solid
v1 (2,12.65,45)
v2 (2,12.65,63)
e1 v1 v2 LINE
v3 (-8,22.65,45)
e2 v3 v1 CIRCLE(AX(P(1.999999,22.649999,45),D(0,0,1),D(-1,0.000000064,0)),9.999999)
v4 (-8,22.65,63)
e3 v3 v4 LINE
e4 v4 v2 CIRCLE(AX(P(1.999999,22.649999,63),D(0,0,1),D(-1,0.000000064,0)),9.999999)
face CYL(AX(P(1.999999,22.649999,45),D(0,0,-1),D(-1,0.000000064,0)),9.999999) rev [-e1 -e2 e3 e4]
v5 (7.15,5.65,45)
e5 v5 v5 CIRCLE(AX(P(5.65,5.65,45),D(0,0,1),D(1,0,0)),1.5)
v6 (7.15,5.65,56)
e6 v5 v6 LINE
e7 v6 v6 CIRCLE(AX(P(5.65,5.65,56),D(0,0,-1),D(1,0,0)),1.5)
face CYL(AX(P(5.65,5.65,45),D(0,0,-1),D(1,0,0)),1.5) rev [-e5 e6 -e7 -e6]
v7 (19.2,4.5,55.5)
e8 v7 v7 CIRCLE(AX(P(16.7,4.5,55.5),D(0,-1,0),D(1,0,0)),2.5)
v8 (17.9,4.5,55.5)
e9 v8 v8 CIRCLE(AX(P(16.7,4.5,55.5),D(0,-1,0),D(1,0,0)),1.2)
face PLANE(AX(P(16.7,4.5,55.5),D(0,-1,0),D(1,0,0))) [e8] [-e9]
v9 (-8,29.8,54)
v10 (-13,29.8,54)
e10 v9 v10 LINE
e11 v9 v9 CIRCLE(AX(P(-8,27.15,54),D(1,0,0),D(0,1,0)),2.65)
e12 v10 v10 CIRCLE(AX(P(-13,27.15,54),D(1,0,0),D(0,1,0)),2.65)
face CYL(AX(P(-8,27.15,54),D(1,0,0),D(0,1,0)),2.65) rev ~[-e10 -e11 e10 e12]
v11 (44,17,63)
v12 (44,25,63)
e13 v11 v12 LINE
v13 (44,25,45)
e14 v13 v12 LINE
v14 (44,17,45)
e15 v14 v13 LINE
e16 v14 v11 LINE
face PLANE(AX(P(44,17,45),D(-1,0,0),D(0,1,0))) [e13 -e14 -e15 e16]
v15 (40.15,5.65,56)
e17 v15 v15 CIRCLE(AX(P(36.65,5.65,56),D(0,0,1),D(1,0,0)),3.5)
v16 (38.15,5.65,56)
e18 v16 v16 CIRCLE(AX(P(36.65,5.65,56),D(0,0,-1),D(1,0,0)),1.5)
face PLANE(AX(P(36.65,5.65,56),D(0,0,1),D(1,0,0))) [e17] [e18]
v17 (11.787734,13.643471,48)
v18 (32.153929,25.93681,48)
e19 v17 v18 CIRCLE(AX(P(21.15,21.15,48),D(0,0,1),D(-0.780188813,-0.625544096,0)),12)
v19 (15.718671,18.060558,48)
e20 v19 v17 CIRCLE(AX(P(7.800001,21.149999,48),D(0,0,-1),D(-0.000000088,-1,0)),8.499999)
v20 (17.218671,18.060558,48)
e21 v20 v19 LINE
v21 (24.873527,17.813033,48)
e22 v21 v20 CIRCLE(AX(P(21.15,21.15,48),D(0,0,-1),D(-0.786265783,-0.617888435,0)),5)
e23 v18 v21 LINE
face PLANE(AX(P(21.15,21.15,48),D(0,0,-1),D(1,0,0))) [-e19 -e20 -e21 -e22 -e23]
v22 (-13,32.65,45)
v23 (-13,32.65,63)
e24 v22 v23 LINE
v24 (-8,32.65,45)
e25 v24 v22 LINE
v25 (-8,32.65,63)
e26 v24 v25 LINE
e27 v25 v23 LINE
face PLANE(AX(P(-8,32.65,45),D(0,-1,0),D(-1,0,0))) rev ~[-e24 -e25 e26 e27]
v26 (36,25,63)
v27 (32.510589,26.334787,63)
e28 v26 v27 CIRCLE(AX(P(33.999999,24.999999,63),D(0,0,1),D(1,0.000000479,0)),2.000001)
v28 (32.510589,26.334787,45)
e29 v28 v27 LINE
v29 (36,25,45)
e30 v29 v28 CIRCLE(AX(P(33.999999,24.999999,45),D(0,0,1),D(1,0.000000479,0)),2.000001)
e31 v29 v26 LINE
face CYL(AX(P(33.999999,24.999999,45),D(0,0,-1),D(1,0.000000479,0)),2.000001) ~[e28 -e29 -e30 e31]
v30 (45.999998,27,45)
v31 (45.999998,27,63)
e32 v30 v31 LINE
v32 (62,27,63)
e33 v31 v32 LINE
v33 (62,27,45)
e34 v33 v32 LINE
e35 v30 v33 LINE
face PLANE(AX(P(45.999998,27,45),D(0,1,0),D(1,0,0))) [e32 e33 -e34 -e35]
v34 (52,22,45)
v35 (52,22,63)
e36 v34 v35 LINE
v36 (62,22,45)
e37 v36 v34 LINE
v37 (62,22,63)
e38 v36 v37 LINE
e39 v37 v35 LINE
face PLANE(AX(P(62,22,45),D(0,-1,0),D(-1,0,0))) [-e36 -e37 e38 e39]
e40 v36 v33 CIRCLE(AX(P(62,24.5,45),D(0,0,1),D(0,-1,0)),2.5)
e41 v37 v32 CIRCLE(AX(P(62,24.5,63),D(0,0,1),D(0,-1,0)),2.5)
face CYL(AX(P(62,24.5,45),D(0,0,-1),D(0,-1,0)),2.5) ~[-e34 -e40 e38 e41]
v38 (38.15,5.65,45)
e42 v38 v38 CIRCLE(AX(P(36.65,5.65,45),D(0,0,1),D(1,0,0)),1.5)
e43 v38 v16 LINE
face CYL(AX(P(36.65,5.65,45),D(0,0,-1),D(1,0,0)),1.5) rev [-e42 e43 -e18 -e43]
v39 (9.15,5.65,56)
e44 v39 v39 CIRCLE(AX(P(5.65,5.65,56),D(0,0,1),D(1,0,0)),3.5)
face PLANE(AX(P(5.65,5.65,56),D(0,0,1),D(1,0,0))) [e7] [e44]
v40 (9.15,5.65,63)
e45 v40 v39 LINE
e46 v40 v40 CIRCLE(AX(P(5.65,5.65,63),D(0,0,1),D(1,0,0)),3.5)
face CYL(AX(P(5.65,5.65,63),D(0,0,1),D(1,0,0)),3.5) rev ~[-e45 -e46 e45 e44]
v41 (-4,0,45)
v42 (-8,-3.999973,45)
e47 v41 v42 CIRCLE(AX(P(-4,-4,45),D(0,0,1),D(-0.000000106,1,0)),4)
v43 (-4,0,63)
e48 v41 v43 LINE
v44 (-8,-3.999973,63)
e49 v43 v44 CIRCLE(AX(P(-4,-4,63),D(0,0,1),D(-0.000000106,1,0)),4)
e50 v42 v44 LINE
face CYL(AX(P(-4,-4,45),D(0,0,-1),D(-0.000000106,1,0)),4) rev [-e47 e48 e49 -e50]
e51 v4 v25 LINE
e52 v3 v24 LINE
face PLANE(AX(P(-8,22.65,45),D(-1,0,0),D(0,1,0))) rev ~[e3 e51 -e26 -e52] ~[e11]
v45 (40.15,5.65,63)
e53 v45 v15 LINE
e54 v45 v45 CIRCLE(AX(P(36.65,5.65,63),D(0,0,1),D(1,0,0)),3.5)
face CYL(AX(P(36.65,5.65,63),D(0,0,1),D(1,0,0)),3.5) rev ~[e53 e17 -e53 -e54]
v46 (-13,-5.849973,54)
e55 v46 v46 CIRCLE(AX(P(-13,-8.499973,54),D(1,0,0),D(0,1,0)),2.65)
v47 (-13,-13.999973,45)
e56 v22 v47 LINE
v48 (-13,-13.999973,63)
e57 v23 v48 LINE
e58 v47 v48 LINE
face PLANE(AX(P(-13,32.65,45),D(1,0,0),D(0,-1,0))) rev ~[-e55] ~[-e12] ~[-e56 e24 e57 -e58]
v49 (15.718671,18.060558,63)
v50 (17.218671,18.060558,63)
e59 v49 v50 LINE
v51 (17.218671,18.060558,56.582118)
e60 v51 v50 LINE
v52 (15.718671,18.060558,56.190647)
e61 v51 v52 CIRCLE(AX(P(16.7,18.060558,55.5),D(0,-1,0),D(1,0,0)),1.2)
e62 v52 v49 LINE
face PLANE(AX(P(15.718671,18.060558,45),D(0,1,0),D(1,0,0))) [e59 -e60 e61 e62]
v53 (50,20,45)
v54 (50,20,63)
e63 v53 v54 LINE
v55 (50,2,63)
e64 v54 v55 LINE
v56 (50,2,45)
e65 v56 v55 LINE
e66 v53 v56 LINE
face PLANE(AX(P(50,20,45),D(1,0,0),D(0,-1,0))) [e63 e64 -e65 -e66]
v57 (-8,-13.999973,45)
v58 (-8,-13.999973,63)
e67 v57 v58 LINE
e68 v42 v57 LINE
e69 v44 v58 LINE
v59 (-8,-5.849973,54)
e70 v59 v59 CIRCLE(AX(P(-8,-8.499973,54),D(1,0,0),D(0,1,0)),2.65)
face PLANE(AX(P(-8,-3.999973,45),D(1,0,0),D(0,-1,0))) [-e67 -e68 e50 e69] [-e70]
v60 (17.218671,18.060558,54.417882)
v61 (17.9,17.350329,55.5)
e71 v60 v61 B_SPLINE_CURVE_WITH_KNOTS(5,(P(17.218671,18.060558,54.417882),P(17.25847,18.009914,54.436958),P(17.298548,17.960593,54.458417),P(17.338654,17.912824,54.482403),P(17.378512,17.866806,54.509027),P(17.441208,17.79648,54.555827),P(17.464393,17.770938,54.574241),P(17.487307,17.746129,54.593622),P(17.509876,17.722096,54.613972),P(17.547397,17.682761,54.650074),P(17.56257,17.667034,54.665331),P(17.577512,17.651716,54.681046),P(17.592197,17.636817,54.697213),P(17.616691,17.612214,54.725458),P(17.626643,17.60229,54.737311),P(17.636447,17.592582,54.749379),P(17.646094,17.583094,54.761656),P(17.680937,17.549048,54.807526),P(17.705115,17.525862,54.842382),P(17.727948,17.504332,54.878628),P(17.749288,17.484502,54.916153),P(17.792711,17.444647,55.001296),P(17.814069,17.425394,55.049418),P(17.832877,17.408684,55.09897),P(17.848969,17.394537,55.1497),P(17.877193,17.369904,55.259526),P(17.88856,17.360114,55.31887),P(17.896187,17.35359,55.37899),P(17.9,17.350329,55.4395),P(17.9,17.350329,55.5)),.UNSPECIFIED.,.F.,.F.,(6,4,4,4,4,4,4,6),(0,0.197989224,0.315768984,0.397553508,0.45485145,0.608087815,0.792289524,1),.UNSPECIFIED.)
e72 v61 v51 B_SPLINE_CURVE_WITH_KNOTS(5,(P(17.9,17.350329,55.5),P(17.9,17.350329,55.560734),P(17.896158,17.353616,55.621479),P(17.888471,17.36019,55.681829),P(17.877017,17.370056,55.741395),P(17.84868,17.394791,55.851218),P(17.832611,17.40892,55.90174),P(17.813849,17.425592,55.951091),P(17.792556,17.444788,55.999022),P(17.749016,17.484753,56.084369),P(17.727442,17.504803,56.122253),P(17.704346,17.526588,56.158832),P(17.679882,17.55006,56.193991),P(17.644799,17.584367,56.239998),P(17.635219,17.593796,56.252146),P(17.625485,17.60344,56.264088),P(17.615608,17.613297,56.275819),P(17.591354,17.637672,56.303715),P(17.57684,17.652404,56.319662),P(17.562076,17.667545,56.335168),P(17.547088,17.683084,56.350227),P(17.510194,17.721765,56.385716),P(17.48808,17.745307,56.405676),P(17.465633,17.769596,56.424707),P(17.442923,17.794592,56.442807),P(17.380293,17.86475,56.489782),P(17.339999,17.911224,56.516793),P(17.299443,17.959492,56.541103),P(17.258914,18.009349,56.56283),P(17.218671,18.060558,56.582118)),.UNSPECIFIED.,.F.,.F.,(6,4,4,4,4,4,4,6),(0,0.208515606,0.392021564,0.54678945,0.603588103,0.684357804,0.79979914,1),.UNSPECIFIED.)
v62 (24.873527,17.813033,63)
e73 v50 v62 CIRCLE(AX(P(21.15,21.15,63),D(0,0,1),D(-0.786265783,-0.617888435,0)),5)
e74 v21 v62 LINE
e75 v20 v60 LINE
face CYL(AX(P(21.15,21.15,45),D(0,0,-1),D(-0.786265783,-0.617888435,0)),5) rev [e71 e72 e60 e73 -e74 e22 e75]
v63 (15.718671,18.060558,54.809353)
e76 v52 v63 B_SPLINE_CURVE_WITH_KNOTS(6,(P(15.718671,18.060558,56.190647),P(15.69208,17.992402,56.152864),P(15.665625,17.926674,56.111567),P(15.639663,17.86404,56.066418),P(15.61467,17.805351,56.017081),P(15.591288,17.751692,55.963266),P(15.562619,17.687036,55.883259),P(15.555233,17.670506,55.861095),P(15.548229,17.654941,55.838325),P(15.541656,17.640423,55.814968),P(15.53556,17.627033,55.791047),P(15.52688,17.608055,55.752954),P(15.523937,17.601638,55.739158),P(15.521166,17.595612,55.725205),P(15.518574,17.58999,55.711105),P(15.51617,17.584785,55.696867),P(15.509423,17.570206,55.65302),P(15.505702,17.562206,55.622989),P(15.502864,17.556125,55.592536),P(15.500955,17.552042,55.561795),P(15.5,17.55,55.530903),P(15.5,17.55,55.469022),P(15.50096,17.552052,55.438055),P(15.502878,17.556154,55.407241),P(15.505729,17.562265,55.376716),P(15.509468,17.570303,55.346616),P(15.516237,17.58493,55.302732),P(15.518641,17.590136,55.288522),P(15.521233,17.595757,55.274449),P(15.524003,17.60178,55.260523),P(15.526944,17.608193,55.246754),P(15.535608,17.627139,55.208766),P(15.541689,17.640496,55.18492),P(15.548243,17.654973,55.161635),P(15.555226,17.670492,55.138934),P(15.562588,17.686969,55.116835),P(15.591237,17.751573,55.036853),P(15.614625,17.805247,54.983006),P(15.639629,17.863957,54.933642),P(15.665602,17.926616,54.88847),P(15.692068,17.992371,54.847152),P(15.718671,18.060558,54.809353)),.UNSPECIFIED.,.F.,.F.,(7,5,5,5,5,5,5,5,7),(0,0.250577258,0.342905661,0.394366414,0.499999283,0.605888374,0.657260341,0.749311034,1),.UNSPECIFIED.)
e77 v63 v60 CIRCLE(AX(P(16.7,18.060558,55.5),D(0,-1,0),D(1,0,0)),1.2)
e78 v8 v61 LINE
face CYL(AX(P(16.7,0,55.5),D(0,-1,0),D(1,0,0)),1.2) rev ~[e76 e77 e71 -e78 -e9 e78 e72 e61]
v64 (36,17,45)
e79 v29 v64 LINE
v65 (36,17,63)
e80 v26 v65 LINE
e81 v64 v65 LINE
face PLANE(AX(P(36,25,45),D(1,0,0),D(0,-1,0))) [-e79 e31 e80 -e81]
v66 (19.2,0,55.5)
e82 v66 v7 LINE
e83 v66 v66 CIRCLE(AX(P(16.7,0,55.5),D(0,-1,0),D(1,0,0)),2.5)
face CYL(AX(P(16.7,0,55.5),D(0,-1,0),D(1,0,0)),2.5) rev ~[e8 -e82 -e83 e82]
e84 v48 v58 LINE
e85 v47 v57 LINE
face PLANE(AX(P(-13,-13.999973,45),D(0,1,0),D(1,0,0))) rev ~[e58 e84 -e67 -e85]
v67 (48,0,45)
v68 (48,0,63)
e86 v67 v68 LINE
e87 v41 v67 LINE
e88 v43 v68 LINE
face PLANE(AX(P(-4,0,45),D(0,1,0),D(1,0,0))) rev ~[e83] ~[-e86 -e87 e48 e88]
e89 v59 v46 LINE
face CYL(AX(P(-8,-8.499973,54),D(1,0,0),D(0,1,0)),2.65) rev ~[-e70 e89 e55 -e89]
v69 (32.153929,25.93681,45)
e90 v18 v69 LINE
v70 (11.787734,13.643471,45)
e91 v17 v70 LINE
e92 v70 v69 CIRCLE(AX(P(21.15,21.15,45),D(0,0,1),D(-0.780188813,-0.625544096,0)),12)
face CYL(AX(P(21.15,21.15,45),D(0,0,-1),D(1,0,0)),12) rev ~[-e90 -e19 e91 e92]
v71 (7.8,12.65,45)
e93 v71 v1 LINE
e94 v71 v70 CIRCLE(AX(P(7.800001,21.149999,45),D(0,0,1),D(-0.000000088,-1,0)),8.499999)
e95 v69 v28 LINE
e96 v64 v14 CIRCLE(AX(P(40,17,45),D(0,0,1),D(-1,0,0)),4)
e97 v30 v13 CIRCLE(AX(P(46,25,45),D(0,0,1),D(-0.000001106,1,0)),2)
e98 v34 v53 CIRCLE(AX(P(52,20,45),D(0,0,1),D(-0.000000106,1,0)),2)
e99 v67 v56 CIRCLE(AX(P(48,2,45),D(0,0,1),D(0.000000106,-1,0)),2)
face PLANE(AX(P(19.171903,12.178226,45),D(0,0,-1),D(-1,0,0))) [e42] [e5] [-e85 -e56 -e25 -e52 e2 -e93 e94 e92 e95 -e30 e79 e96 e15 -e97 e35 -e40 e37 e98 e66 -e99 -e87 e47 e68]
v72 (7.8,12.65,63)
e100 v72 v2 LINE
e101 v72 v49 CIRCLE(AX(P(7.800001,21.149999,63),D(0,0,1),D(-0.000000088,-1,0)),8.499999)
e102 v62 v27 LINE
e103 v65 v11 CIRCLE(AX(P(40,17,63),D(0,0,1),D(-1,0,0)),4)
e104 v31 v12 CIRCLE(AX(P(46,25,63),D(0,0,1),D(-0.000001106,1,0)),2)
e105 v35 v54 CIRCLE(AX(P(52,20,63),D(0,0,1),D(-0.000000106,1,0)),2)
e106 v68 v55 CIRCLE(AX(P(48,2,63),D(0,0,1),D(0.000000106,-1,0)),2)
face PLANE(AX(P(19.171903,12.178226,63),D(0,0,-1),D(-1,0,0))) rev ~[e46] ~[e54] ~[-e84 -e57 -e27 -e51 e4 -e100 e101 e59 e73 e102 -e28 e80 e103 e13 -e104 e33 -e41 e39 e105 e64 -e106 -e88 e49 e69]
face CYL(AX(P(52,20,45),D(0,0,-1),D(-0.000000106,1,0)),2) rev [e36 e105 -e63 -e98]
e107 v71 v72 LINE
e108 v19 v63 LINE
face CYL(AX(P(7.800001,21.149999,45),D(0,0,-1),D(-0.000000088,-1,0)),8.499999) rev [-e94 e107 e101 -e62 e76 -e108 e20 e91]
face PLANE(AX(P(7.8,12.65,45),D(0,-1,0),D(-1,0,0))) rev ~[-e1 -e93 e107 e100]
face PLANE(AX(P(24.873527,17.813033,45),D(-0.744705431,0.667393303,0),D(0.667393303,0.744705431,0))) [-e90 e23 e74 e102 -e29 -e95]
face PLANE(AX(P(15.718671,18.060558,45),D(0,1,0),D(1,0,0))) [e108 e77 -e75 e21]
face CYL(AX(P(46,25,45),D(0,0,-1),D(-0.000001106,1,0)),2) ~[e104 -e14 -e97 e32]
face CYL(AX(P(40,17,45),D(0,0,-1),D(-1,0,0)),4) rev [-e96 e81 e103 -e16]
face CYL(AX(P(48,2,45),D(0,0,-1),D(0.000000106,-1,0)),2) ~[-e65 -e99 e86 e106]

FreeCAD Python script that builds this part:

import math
import FreeCAD as App
import Part
import Sketcher
from FreeCAD import Vector

doc = App.newDocument("Part")
body = doc.addObject("PartDesign::Body", "Body")

# Sketch on XY plane
sketch1 = body.newObject("Sketcher::SketchObject", "Sketch")
sketch1.AttachmentSupport = (doc.getObject("XY_Plane"), [""])
sketch1.MapMode = "FlatFace"
sketch1.AttachmentOffset = App.Placement(Vector(0, 0, 45), App.Rotation())
sketch1.addGeometry([
    Part.ArcOfCircle(Part.Circle(Vector(7.8, 21.1, 0), Vector(0, 0, 1), 8.5), math.radians(-90), math.radians(-21)),  # 0
    Part.LineSegment(Vector(7.8, 12.7, 0), Vector(2, 12.7, 0)),  # 1
    Part.ArcOfCircle(Part.Circle(Vector(2, 22.6, 0), Vector(0, 0, 1), 10), math.radians(180), math.radians(270)),  # 2
    Part.LineSegment(Vector(-8, 22.6, 0), Vector(-8, 32.6, 0)),  # 3
    Part.LineSegment(Vector(-8, 32.6, 0), Vector(-13, 32.6, 0)),  # 4
    Part.LineSegment(Vector(-13, 32.6, 0), Vector(-13, -14, 0)),  # 5
    Part.LineSegment(Vector(-13, -14, 0), Vector(-8, -14, 0)),  # 6
    Part.LineSegment(Vector(-8, -14, 0), Vector(-8, -4, 0)),  # 7
    Part.ArcOfCircle(Part.Circle(Vector(-4, -4, 0), Vector(0, 0, 1), 4), math.radians(90), math.radians(180)),  # 8
    Part.LineSegment(Vector(-4, 0, 0), Vector(48, 0, 0)),  # 9
    Part.ArcOfCircle(Part.Circle(Vector(48, 2, 0), Vector(0, 0, 1), 2), math.radians(-90), math.radians(0)),  # 10
    Part.LineSegment(Vector(50, 2, 0), Vector(50, 20, 0)),  # 11
    Part.ArcOfCircle(Part.Circle(Vector(52, 20, 0), Vector(0, 0, 1), 2), math.radians(90), math.radians(180)),  # 12
    Part.LineSegment(Vector(52, 22, 0), Vector(62, 22, 0)),  # 13
    Part.ArcOfCircle(Part.Circle(Vector(62, 24.5, 0), Vector(0, 0, 1), 2.5), math.radians(-90), math.radians(90)),  # 14
    Part.LineSegment(Vector(62, 27, 0), Vector(46, 27, 0)),  # 15
    Part.ArcOfCircle(Part.Circle(Vector(46, 25, 0), Vector(0, 0, 1), 2), math.radians(90), math.radians(180)),  # 16
    Part.LineSegment(Vector(44, 25, 0), Vector(44, 17, 0)),  # 17
    Part.ArcOfCircle(Part.Circle(Vector(40, 17, 0), Vector(0, 0, 1), 4), math.radians(180), math.radians(360)),  # 18
    Part.LineSegment(Vector(36, 17, 0), Vector(36, 25, 0)),  # 19
    Part.ArcOfCircle(Part.Circle(Vector(34, 25, 0), Vector(0, 0, 1), 2), math.radians(0), math.radians(138)),  # 20
    Part.LineSegment(Vector(32.5, 26.3, 0), Vector(24.9, 17.8, 0)),  # 21
    Part.ArcOfCircle(Part.Circle(Vector(21.2, 21.2, 0), Vector(0, 0, 1), 5), math.radians(-142), math.radians(-42)),  # 22
    Part.LineSegment(Vector(17.2, 18.1, 0), Vector(15.7, 18.1, 0)),  # 23
    Part.Circle(Vector(36.6, 5.7, 0), Vector(0, 0, 1), 1.5),  # 24
    Part.Circle(Vector(5.7, 5.7, 0), Vector(0, 0, 1), 1.5),  # 25
], False)
sketch1.addConstraint([
    Sketcher.Constraint("Tangent", 0, 1, 1, 1),
    Sketcher.Constraint("Tangent", 1, 2, 2, 2),
    Sketcher.Constraint("Tangent", 2, 1, 3, 1),
    Sketcher.Constraint("Coincident", 3, 2, 4, 1),
    Sketcher.Constraint("Coincident", 4, 2, 5, 1),
    Sketcher.Constraint("Coincident", 5, 2, 6, 1),
    Sketcher.Constraint("Coincident", 6, 2, 7, 1),
    Sketcher.Constraint("Coincident", 7, 2, 8, 2),
    Sketcher.Constraint("Tangent", 8, 1, 9, 1),
    Sketcher.Constraint("Tangent", 9, 2, 10, 1),
    Sketcher.Constraint("Tangent", 10, 2, 11, 1),
    Sketcher.Constraint("Tangent", 11, 2, 12, 2),
    Sketcher.Constraint("Tangent", 12, 1, 13, 1),
    Sketcher.Constraint("Tangent", 13, 2, 14, 1),
    Sketcher.Constraint("Tangent", 14, 2, 15, 1),
    Sketcher.Constraint("Tangent", 15, 2, 16, 1),
    Sketcher.Constraint("Tangent", 16, 2, 17, 1),
    Sketcher.Constraint("Tangent", 17, 2, 18, 2),
    Sketcher.Constraint("Tangent", 18, 1, 19, 1),
    Sketcher.Constraint("Tangent", 19, 2, 20, 1),
    Sketcher.Constraint("Tangent", 20, 2, 21, 1),
    Sketcher.Constraint("Tangent", 21, 2, 22, 2),
    Sketcher.Constraint("Coincident", 22, 1, 23, 1),
    Sketcher.Constraint("Coincident", 23, 2, 0, 2),
    Sketcher.Constraint("Horizontal", 1),
    Sketcher.Constraint("Vertical", 3),
    Sketcher.Constraint("Horizontal", 4),
    Sketcher.Constraint("Vertical", 5),
    Sketcher.Constraint("Horizontal", 6),
    Sketcher.Constraint("Vertical", 7),
    Sketcher.Constraint("Horizontal", 9),
    Sketcher.Constraint("Vertical", 11),
    Sketcher.Constraint("Horizontal", 13),
    Sketcher.Constraint("Horizontal", 15),
    Sketcher.Constraint("Vertical", 17),
    Sketcher.Constraint("Vertical", 19),
    Sketcher.Constraint("Horizontal", 23),
    Sketcher.Constraint("Equal", 10, 12),
    Sketcher.Constraint("Equal", 12, 16),
    Sketcher.Constraint("Equal", 8, 18),
    Sketcher.Constraint("Equal", 16, 20),
    Sketcher.Constraint("Equal", 24, 25),
    Sketcher.Constraint("PointOnObject", 8, 1, -1),
    Sketcher.Constraint("Horizontal", 16, 3, 20, 3),
    Sketcher.Constraint("Horizontal", 0, 3, 22, 3),
    Sketcher.Constraint("Horizontal", 24, 3, 25, 3),
    Sketcher.Constraint("Vertical", 3, 2, 6, 2),
    Sketcher.Constraint("Equal", 13, 3),
    Sketcher.Constraint("Equal", 3, 7),
    Sketcher.Constraint("Diameter", 24, 3.0),
    Sketcher.Constraint("Radius", 2, 9.999999),
    Sketcher.Constraint("Radius", 8, 4.0),
    Sketcher.Constraint("Radius", 10, 2.0),
    Sketcher.Constraint("Radius", 22, 5.0),
    Sketcher.Constraint("Radius", 0, 8.499999),
    Sketcher.Constraint("Radius", 14, 2.5),
    Sketcher.Constraint("DistanceX", 4, 2, 4, 1, 5.0),
    Sketcher.Constraint("DistanceX", 9, 1, 9, 2, 52.0),
    Sketcher.Constraint("DistanceX", 13, 1, 13, 2, 10.0),
    Sketcher.Constraint("DistanceY", 11, 1, 11, 2, 18.0),
    Sketcher.Constraint("DistanceY", 17, 2, 17, 1, 8.0),
    Sketcher.Constraint("DistanceX", 1, 2, 1, 1, 5.8),
    Sketcher.Constraint("DistanceX", 23, 2, 23, 1, 1.5),
    Sketcher.Constraint("DistanceX", -1, 1, 2, 3, 1.999999),
    Sketcher.Constraint("DistanceX", -1, 1, 16, 3, 46.0),
    Sketcher.Constraint("DistanceY", 25, 3, 2, 3, 16.999999),
    Sketcher.Constraint("DistanceX", 25, 3, 24, 3, 31.0),
    Sketcher.Constraint("DistanceX", 25, 3, 22, 3, 15.5),
    Sketcher.Constraint("DistanceY", -1, 1, 0, 3, 21.149999),
    Sketcher.Constraint("DistanceX", -1, 1, 22, 3, 21.15),
    Sketcher.Constraint("DistanceY", 5, 2, 5, 1, 46.649973),
])
pad1 = body.newObject("PartDesign::Pad", "Pad")
pad1.Profile = sketch1
pad1.Length = 18

# Sketch on XY plane
sketch2 = body.newObject("Sketcher::SketchObject", "Sketch001")
sketch2.AttachmentSupport = (doc.getObject("XY_Plane"), [""])
sketch2.MapMode = "FlatFace"
sketch2.AttachmentOffset = App.Placement(Vector(0, 0, 45), App.Rotation())
sketch2.addGeometry(Part.Circle(Vector(21, 21, 0), Vector(0, 0, 1), 12), False)
sketch2.addConstraint([
    Sketcher.Constraint("Diameter", 0, 24.0),
    Sketcher.Constraint("DistanceX", -1, 1, 0, 3, 21.15),
    Sketcher.Constraint("DistanceY", -1, 1, 0, 3, 21.15),
])
pocket1 = body.newObject("PartDesign::Pocket", "Pocket")
pocket1.Profile = sketch2
pocket1.Length = 3
pocket1.Reversed = True

# Sketch on XZ plane
sketch3 = body.newObject("Sketcher::SketchObject", "Sketch002")
sketch3.AttachmentSupport = (doc.getObject("XZ_Plane"), [""])
sketch3.MapMode = "FlatFace"
sketch3.addGeometry(Part.Circle(Vector(16.7, 55.5, 0), Vector(0, 0, 1), 1.2), False)
sketch3.addConstraint([
    Sketcher.Constraint("Diameter", 0, 2.4),
    Sketcher.Constraint("DistanceX", -1, 1, 0, 3, 16.7),
    Sketcher.Constraint("DistanceY", -1, 1, 0, 3, 55.5),
])
pocket2 = body.newObject("PartDesign::Pocket", "Pocket001")
pocket2.Profile = sketch3
pocket2.Type = "ThroughAll"

# Sketch on XZ plane
sketch4 = body.newObject("Sketcher::SketchObject", "Sketch003")
sketch4.AttachmentSupport = (doc.getObject("XZ_Plane"), [""])
sketch4.MapMode = "FlatFace"
sketch4.addGeometry(Part.Circle(Vector(16.7, 55.5, 0), Vector(0, 0, 1), 2.5), False)
sketch4.addConstraint([
    Sketcher.Constraint("Diameter", 0, 5.0),
    Sketcher.Constraint("DistanceX", -1, 1, 0, 3, 16.7),
    Sketcher.Constraint("DistanceY", -1, 1, 0, 3, 55.5),
])
pocket3 = body.newObject("PartDesign::Pocket", "Pocket002")
pocket3.Profile = sketch4
pocket3.Length = 4.5

# Sketch on XY plane
sketch5 = body.newObject("Sketcher::SketchObject", "Sketch004")
sketch5.AttachmentSupport = (doc.getObject("XY_Plane"), [""])
sketch5.MapMode = "FlatFace"
sketch5.AttachmentOffset = App.Placement(Vector(0, 0, 63), App.Rotation())
sketch5.addGeometry([
    Part.Circle(Vector(5.7, 5.7, 0), Vector(0, 0, 1), 3.5),
    Part.Circle(Vector(36.6, 5.7, 0), Vector(0, 0, 1), 3.5),
], False)
sketch5.addConstraint([
    Sketcher.Constraint("Equal", 0, 1),
    Sketcher.Constraint("Horizontal", 0, 3, 1, 3),
    Sketcher.Constraint("Diameter", 0, 7.0),
    Sketcher.Constraint("DistanceX", 0, 3, 1, 3, 31.0),
    Sketcher.Constraint("DistanceX", -1, 1, 0, 3, 5.65),
    Sketcher.Constraint("DistanceY", -1, 1, 0, 3, 5.65),
])
pocket4 = body.newObject("PartDesign::Pocket", "Pocket003")
pocket4.Profile = sketch5
pocket4.Length = 7

# Sketch on YZ plane
sketch6 = body.newObject("Sketcher::SketchObject", "Sketch005")
sketch6.AttachmentSupport = (doc.getObject("YZ_Plane"), [""])
sketch6.MapMode = "FlatFace"
sketch6.AttachmentOffset = App.Placement(Vector(0, 0, -8), App.Rotation())
sketch6.addGeometry([
    Part.Circle(Vector(-8.5, 54, 0), Vector(0, 0, 1), 2.6),
    Part.Circle(Vector(27.1, 54, 0), Vector(0, 0, 1), 2.6),
], False)
sketch6.addConstraint([
    Sketcher.Constraint("Equal", 0, 1),
    Sketcher.Constraint("Horizontal", 0, 3, 1, 3),
    Sketcher.Constraint("Diameter", 0, 5.3),
    Sketcher.Constraint("DistanceY", -1, 1, 0, 3, 54.0),
    Sketcher.Constraint("DistanceX", -1, 1, 1, 3, 27.15),
    Sketcher.Constraint("DistanceX", 0, 3, -1, 1, 8.499973),
])
pocket5 = body.newObject("PartDesign::Pocket", "Pocket004")
pocket5.Profile = sketch6
pocket5.Type = "ThroughAll"

doc.recompute()
